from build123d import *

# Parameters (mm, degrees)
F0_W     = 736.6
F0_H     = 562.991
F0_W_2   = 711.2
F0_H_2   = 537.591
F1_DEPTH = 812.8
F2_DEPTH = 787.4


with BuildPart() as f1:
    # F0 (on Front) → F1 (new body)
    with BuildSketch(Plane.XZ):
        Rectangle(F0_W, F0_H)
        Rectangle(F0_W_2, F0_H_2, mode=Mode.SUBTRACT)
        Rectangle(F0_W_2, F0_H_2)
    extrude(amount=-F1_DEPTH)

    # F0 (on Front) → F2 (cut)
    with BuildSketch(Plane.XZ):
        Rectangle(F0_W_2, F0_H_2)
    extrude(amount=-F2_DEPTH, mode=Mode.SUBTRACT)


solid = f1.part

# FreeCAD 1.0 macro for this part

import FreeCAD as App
import Part
import Sketcher

V = App.Vector
Q = App.Units.Quantity


def add_polygon(sketch, points):
    """Adds a closed chain of lines whose ends are joined by coincident constraints."""
    first, n = sketch.GeometryCount, len(points)
    for a, b in zip(points, points[1:] + points[:1]):
        sketch.addGeometry(Part.LineSegment(App.Vector(*a, 0), App.Vector(*b, 0)), False)
    for i in range(n):
        sketch.addConstraint(Sketcher.Constraint("Coincident", first + i, 2, first + (i + 1) % n, 1))

doc = App.newDocument("Part")
body = doc.addObject("PartDesign::Body", "Body")

sketch1 = doc.addObject("Sketcher::SketchObject", "Sketch")
body.addObject(sketch1)
sketch1.AttachmentSupport = (doc.XZ_Plane, [""])
sketch1.MapMode = "FlatFace"
add_polygon(sketch1, [(-368.3, 281.4955), (-368.3, -281.4955), (368.3, -281.4955), (368.3, 281.4955)])
sketch1.addConstraint([
    Sketcher.Constraint("Vertical", 0),
    Sketcher.Constraint("Horizontal", 1),
    Sketcher.Constraint("Vertical", 2),
    Sketcher.Constraint("Horizontal", 3),
    Sketcher.Constraint("Symmetric", 0, 2, 2, 2, -1, 1),
    Sketcher.Constraint("DistanceX", 1, 1, 1, 2, Q("29 in")),
    Sketcher.Constraint("DistanceY", 0, 2, 0, 1, Q("22.165 in")),
])
pad1 = doc.addObject("PartDesign::Pad", "Pad")
body.addObject(pad1)
pad1.Profile = sketch1
pad1.Length = Q("32 in")
pad1.Reversed = True

sketch2 = doc.addObject("Sketcher::SketchObject", "Sketch001")
body.addObject(sketch2)
sketch2.AttachmentSupport = (doc.XZ_Plane, [""])
sketch2.MapMode = "FlatFace"
add_polygon(sketch2, [(-355.6, 268.7955), (-355.6, -268.7955), (355.6, -268.7955), (355.6, 268.7955)])
sketch2.addConstraint([
    Sketcher.Constraint("Vertical", 0),
    Sketcher.Constraint("Horizontal", 1),
    Sketcher.Constraint("Vertical", 2),
    Sketcher.Constraint("Horizontal", 3),
    Sketcher.Constraint("Symmetric", 0, 2, 2, 2, -1, 1),
    Sketcher.Constraint("DistanceX", 1, 1, 1, 2, Q("28 in")),
    Sketcher.Constraint("DistanceY", 0, 2, 0, 1, Q("21.165 in")),
])
pocket1 = doc.addObject("PartDesign::Pocket", "Pocket")
body.addObject(pocket1)
pocket1.Profile = sketch2
pocket1.Length = Q("31 in")

doc.recompute()
